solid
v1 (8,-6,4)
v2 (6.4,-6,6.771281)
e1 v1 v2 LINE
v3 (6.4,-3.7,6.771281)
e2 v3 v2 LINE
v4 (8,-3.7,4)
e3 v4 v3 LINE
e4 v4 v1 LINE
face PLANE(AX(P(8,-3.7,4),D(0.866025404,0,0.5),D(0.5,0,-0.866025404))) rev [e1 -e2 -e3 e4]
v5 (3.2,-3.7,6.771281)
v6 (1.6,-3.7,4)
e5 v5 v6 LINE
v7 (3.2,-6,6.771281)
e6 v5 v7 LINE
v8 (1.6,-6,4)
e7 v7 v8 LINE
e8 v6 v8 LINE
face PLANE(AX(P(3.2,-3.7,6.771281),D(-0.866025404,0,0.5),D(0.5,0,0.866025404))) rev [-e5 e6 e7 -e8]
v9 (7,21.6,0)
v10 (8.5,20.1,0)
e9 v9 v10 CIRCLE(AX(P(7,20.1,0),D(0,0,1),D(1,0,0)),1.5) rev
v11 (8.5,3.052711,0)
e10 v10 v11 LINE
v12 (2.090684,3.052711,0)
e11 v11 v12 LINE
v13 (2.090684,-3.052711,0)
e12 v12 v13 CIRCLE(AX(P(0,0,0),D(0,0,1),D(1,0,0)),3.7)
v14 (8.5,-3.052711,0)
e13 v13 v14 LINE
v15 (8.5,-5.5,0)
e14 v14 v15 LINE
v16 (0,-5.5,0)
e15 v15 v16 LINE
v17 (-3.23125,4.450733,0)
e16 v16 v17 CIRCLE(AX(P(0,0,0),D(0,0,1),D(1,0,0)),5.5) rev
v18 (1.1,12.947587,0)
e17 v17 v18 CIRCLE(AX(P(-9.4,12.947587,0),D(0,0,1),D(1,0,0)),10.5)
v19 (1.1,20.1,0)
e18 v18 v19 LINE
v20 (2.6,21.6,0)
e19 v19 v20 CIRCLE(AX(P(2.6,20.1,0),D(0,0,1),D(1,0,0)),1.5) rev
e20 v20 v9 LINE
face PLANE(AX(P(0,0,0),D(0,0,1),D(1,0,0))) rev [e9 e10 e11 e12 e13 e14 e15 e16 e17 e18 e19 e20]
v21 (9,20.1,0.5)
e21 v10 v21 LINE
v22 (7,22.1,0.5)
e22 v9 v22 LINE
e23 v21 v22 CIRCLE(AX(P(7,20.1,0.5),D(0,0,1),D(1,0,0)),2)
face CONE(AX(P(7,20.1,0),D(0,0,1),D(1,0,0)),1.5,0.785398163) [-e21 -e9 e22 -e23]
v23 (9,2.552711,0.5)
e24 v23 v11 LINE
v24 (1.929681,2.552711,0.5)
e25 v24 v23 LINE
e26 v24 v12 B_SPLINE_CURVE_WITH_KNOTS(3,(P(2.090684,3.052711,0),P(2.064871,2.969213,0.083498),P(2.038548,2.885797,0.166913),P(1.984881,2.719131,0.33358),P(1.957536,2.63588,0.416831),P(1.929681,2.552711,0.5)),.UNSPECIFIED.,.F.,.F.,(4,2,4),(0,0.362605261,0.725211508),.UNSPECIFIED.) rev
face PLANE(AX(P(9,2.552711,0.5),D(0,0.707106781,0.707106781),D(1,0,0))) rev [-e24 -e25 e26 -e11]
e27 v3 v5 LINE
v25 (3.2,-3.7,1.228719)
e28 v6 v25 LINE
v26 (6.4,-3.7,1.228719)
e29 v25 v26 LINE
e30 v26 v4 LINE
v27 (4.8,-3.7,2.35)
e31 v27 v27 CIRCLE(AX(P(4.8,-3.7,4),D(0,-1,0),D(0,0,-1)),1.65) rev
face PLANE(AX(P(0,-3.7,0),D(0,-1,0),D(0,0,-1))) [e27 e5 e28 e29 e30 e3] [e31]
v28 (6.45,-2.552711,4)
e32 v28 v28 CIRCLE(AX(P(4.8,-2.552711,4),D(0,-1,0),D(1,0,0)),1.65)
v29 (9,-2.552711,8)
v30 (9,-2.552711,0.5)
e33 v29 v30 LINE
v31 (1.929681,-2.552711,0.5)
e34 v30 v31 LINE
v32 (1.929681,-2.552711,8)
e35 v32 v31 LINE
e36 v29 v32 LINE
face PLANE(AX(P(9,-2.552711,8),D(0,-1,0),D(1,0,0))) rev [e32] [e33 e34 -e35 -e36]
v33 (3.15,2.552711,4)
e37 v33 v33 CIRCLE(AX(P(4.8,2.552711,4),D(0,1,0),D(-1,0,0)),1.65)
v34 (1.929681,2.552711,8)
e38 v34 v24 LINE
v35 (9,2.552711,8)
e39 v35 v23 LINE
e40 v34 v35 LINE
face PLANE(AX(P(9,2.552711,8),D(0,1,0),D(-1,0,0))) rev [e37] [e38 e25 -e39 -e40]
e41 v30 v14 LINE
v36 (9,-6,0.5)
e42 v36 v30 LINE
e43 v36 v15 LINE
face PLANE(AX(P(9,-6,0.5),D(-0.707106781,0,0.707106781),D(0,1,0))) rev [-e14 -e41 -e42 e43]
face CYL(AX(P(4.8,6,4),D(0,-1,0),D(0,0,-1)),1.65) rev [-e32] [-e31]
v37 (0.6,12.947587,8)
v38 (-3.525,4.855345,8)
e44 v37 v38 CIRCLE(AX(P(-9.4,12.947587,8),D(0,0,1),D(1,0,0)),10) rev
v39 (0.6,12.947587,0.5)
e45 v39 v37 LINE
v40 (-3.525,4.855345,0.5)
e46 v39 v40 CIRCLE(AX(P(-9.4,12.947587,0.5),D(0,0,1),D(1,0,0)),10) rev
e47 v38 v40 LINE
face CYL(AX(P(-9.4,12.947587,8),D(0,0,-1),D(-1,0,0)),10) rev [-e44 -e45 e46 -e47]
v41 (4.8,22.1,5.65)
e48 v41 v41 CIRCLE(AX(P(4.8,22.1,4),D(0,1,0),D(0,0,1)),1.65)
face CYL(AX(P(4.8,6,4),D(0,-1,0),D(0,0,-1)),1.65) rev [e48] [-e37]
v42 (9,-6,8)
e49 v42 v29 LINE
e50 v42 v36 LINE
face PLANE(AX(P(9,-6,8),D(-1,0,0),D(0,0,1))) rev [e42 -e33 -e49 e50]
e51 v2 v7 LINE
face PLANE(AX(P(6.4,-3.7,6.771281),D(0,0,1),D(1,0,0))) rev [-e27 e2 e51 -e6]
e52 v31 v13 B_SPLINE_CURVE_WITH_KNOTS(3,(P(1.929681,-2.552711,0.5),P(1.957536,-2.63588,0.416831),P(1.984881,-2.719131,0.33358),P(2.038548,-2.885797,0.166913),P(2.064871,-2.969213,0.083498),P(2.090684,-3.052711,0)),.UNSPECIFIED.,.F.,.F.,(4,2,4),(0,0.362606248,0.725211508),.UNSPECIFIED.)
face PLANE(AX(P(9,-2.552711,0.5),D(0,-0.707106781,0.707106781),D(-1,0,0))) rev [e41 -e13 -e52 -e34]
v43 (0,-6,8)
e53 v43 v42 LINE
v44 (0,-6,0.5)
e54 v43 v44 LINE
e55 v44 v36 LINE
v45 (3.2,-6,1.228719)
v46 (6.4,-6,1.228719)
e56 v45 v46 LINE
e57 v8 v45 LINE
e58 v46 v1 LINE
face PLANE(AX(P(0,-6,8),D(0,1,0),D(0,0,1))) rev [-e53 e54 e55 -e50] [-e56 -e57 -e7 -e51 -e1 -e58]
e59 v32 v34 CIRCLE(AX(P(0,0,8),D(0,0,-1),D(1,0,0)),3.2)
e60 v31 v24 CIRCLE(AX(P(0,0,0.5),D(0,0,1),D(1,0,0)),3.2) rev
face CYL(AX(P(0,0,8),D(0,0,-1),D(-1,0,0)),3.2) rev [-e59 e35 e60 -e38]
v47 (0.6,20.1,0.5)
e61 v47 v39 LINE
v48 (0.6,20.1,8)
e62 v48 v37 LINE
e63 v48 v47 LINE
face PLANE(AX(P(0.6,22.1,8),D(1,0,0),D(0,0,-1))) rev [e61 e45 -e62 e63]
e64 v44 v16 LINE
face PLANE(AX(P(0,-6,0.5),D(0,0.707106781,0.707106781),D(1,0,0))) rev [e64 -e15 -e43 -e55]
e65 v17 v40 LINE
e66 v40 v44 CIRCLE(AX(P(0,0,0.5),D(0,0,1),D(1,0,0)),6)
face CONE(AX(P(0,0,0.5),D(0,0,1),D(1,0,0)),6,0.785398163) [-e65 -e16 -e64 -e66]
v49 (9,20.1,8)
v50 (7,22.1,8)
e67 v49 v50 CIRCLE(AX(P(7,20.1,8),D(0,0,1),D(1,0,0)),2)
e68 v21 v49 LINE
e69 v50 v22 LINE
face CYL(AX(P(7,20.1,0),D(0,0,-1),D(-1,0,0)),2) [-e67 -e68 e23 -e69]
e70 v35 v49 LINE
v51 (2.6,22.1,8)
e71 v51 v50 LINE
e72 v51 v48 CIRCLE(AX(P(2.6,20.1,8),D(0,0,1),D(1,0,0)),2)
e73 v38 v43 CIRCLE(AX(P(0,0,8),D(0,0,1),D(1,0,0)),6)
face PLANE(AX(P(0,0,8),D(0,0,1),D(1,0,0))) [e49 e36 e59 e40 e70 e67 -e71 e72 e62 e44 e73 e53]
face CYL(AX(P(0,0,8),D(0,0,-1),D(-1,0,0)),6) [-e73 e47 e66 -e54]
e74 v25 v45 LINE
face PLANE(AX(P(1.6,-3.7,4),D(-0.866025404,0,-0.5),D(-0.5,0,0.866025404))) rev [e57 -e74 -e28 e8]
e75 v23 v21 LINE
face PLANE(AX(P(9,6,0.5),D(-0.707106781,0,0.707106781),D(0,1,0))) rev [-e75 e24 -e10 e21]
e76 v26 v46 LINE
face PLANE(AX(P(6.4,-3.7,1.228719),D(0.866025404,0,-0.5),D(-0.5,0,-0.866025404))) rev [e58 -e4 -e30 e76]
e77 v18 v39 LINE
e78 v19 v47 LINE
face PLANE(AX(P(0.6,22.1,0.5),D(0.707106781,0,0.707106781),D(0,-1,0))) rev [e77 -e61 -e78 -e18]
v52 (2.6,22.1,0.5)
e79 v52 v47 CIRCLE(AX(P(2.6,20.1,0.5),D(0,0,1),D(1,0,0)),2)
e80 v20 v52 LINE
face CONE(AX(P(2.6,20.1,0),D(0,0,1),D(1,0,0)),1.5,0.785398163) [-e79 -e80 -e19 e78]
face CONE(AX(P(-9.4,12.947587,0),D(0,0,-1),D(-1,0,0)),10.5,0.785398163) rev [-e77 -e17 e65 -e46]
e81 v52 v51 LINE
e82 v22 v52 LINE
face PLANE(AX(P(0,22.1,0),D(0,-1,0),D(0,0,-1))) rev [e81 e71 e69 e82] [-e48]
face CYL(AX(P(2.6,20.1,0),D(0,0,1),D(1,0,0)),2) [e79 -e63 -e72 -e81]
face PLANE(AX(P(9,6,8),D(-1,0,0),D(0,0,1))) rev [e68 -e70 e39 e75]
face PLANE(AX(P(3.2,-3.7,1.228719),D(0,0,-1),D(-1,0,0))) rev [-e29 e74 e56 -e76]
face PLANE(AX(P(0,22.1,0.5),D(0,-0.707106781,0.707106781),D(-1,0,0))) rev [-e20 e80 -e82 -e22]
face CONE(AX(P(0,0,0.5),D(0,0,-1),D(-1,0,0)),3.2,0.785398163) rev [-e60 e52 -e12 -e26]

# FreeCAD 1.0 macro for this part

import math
import FreeCAD as App
import Part
import Sketcher

V = App.Vector
Q = App.Units.Quantity


def edges_at(feature, points):
    """Names of the edges that pass closest to the given points."""
    edges = feature.Shape.Edges
    near = lambda p: min(range(len(edges)), key=lambda i: edges[i].distToShape(Part.Vertex(*p))[0])
    return sorted({f"Edge{near(p) + 1}" for p in points})


def add_polygon(sketch, points):
    """Adds a closed chain of lines whose ends are joined by coincident constraints."""
    first, n = sketch.GeometryCount, len(points)
    for a, b in zip(points, points[1:] + points[:1]):
        sketch.addGeometry(Part.LineSegment(App.Vector(*a, 0), App.Vector(*b, 0)), False)
    for i in range(n):
        sketch.addConstraint(Sketcher.Constraint("Coincident", first + i, 2, first + (i + 1) % n, 1))

doc = App.newDocument("Part")
body = doc.addObject("PartDesign::Body", "Body")

# Sketch on XY plane
sketch1 = body.newObject("Sketcher::SketchObject", "Sketch")
sketch1.AttachmentSupport = (doc.getObject("XY_Plane"), [""])
sketch1.MapMode = "FlatFace"
sketch1.addGeometry([
    Part.LineSegment(V(9, 6, 0), V(0, 6, 0)),  # 0
    Part.ArcOfCircle(Part.Circle(V(0, 0, 0), V(0, 0, 1), 6), math.radians(90), math.radians(270)),  # 1
    Part.LineSegment(V(0, -6, 0), V(9, -6, 0)),  # 2
    Part.LineSegment(V(9, -6, 0), V(9, -2.552711, 0)),  # 3
    Part.LineSegment(V(9, -2.552711, 0), V(1.929681, -2.552711, 0)),  # 4
    Part.ArcOfCircle(Part.Circle(V(0, 0, 0), V(0, 0, 1), 3.2), math.radians(52.913122), math.radians(307.086878)),  # 5
    Part.LineSegment(V(1.929681, 2.552711, 0), V(9, 2.552711, 0)),  # 6
    Part.LineSegment(V(9, 2.552711, 0), V(9, 6, 0)),  # 7
], False)
sketch1.addConstraint([
    Sketcher.Constraint("Tangent", 0, 2, 1, 1),
    Sketcher.Constraint("Tangent", 1, 2, 2, 1),
    Sketcher.Constraint("Coincident", 2, 2, 3, 1),
    Sketcher.Constraint("Coincident", 3, 2, 4, 1),
    Sketcher.Constraint("Coincident", 4, 2, 5, 2),
    Sketcher.Constraint("Coincident", 5, 1, 6, 1),
    Sketcher.Constraint("Coincident", 6, 2, 7, 1),
    Sketcher.Constraint("Coincident", 7, 2, 0, 1),
    Sketcher.Constraint("Horizontal", 0),
    Sketcher.Constraint("Horizontal", 2),
    Sketcher.Constraint("Vertical", 3),
    Sketcher.Constraint("Horizontal", 4),
    Sketcher.Constraint("Horizontal", 6),
    Sketcher.Constraint("Vertical", 7),
    Sketcher.Constraint("Coincident", 1, 3, -1, 1),
    Sketcher.Constraint("Coincident", 5, 3, -1, 1),
    Sketcher.Constraint("Symmetric", 3, 2, 6, 2, -1),
    Sketcher.Constraint("Radius", 1, 6.0),
    Sketcher.Constraint("Radius", 5, 3.2),
    Sketcher.Constraint("DistanceX", 0, 2, 0, 1, 9.0),
    Sketcher.Constraint("DistanceX", 4, 2, 4, 1, 7.070319),
])
pad1 = body.newObject("PartDesign::Pad", "Pad")
pad1.Profile = sketch1
pad1.Length = 8

# Sketch on XZ plane
sketch2 = body.newObject("Sketcher::SketchObject", "Sketch001")
sketch2.AttachmentSupport = (doc.getObject("XZ_Plane"), [""])
sketch2.MapMode = "FlatFace"
sketch2.AttachmentOffset = App.Placement(V(0, 0, 6), App.Rotation())
sketch2.addGeometry(Part.Circle(V(4.8, 4, 0), V(0, 0, 1), 1.65), False)
sketch2.addConstraint([
    Sketcher.Constraint("Diameter", 0, 3.3),
    Sketcher.Constraint("DistanceY", -1, 1, 0, 3, 4.0),
    Sketcher.Constraint("DistanceX", -1, 1, 0, 3, 4.8),
])
pocket1 = body.newObject("PartDesign::Pocket", "Pocket")
pocket1.Profile = sketch2
pocket1.Type = "ThroughAll"

# Sketch on XZ plane
sketch3 = body.newObject("Sketcher::SketchObject", "Sketch002")
sketch3.AttachmentSupport = (doc.getObject("XZ_Plane"), [""])
sketch3.MapMode = "FlatFace"
sketch3.AttachmentOffset = App.Placement(V(0, 0, 6), App.Rotation())
add_polygon(sketch3, [(6.4, 6.771281), (3.2, 6.771281), (1.6, 4), (3.2, 1.228719), (6.4, 1.228719), (8, 4)])  # lines 0-5
sketch3.addConstraint([
    Sketcher.Constraint("Horizontal", 0),
    Sketcher.Constraint("Horizontal", 3),
    Sketcher.Constraint("Parallel", 1, 4),
    Sketcher.Constraint("Parallel", 2, 5),
    Sketcher.Constraint("Horizontal", 1, 2, 4, 2),
    Sketcher.Constraint("Vertical", 0, 2, 2, 2),
    Sketcher.Constraint("Vertical", 3, 2, 5, 2),
    Sketcher.Constraint("Angle", 1, Q("-120 deg")),
    Sketcher.Constraint("DistanceX", 0, 2, 0, 1, 3.2),
    Sketcher.Constraint("DistanceY", -1, 1, 1, 2, 4.0),
    Sketcher.Constraint("DistanceX", -1, 1, 4, 2, 8.0),
    Sketcher.Constraint("Distance", 1, 3.2),
])
pocket2 = body.newObject("PartDesign::Pocket", "Pocket001")
pocket2.Profile = sketch3
pocket2.Length = 2.3

# Sketch on XZ plane
sketch4 = body.newObject("Sketcher::SketchObject", "Sketch003")
sketch4.AttachmentSupport = (doc.getObject("XZ_Plane"), [""])
sketch4.MapMode = "FlatFace"
sketch4.AttachmentOffset = App.Placement(V(0, 0, -6), App.Rotation())
add_polygon(sketch4, [(0.6, 0), (0.6, 8), (9, 8), (9, 0)])  # lines 0-3
sketch4.addGeometry(Part.Circle(V(4.8, 4, 0), V(0, 0, 1), 1.65), False)  # 4
sketch4.addConstraint([
    Sketcher.Constraint("Vertical", 0),
    Sketcher.Constraint("Horizontal", 1),
    Sketcher.Constraint("Vertical", 2),
    Sketcher.Constraint("Horizontal", 3),
    Sketcher.Constraint("PointOnObject", 2, 2, -1),
    Sketcher.Constraint("Diameter", 4, 3.3),
    Sketcher.Constraint("DistanceY", 0, 1, 0, 2, 8.0),
    Sketcher.Constraint("DistanceX", 1, 1, 1, 2, 8.4),
    Sketcher.Constraint("DistanceY", -1, 1, 4, 3, 4.0),
    Sketcher.Constraint("DistanceX", -1, 1, 1, 2, 9.0),
    Sketcher.Constraint("DistanceX", -1, 1, 4, 3, 4.8),
])
pad2 = body.newObject("PartDesign::Pad", "Pad001")
pad2.Profile = sketch4
pad2.Length = 16.1
pad2.Reversed = True
doc.recompute()

fillet = body.newObject("PartDesign::Fillet", "Fillet")
fillet.Base = (pad2, edges_at(pad2, [(0.6, 6, 4)]))
fillet.Radius = 10
doc.recompute()

fillet2 = body.newObject("PartDesign::Fillet", "Fillet001")
fillet2.Base = (fillet, edges_at(fillet, [(9, 22.1, 4), (0.6, 22.1, 4)]))
fillet2.Radius = 2
doc.recompute()

chamfer = body.newObject("PartDesign::Chamfer", "Chamfer")
chamfer.Base = (fillet2, edges_at(fillet2, [
    (5.465, 2.553, 0),
    (-3.2, 0, 0),
    (-5.707, -1.853, 0),
    (-0.491, 8.406, 0),
    (4.8, 22.1, 0),
    (5.465, -2.553, 0),
    (0.6, 16.524, 0),
    (1.186, 21.514, 0),
    (8.414, 21.514, 0),
    (9, -4.276, 0),
    (4.5, -6, 0),
    (9, 11.326, 0),
]))
chamfer.Size = 0.5

doc.recompute()
